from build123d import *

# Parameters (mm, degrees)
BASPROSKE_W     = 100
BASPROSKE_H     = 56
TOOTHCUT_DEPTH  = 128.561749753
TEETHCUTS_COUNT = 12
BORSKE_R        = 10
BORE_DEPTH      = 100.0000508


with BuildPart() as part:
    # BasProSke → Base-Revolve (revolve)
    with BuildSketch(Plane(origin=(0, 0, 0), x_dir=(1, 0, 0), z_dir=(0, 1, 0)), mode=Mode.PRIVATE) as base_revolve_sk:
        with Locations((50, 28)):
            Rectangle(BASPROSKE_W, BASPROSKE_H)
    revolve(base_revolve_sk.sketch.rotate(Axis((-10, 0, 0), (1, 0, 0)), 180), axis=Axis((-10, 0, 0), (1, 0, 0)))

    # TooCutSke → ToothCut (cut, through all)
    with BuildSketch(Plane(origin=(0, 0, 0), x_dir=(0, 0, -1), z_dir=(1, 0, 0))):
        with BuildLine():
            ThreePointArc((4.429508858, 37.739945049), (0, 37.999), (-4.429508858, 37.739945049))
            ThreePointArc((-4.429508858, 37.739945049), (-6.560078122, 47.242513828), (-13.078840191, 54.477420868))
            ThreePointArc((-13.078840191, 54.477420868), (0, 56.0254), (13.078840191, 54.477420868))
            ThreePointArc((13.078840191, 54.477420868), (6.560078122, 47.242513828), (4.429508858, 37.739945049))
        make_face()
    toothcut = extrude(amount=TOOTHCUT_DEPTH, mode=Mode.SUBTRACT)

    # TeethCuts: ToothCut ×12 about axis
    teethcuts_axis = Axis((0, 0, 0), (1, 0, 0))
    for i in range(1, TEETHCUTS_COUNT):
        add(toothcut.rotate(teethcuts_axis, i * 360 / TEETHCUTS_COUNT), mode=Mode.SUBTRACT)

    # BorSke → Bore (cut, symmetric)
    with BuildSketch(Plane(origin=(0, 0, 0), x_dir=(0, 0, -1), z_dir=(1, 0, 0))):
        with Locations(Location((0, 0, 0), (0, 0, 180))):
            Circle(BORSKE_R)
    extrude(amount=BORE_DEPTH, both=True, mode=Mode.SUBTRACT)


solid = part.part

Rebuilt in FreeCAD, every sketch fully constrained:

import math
import FreeCAD as App
import Part
import Sketcher
from FreeCAD import Vector
Q = App.Units.Quantity

doc = App.newDocument("Part")
body = doc.addObject("PartDesign::Body", "Body")

# Sketch on XZ plane
sketch1 = body.newObject("Sketcher::SketchObject", "Sketch")
sketch1.AttachmentSupport = (doc.getObject("XZ_Plane"), [""])
sketch1.MapMode = "FlatFace"
sketch1.addGeometry([
    Part.LineSegment(Vector(0, -56, 0), Vector(0, 0, 0)),
    Part.LineSegment(Vector(0, 0, 0), Vector(100, 0, 0)),
    Part.LineSegment(Vector(100, 0, 0), Vector(100, -56, 0)),
    Part.LineSegment(Vector(100, -56, 0), Vector(0, -56, 0)),
], False)
sketch1.addConstraint([
    Sketcher.Constraint("Coincident", 0, 2, 1, 1),
    Sketcher.Constraint("Coincident", 1, 2, 2, 1),
    Sketcher.Constraint("Coincident", 2, 2, 3, 1),
    Sketcher.Constraint("Coincident", 3, 2, 0, 1),
    Sketcher.Constraint("Vertical", 0),
    Sketcher.Constraint("Horizontal", 1),
    Sketcher.Constraint("Vertical", 2),
    Sketcher.Constraint("Horizontal", 3),
    Sketcher.Constraint("Coincident", 0, 2, -1, 1),
    Sketcher.Constraint("DistanceX", 1, 1, 1, 2, Q("100 mm")),
    Sketcher.Constraint("DistanceY", 0, 1, 0, 2, Q("56 mm")),
])
revolution = body.newObject("PartDesign::Revolution", "Revolution")
revolution.Profile = sketch1
revolution.ReferenceAxis = (sketch1, ["H_Axis"])
revolution.Angle = 360

# Sketch on YZ plane
sketch2 = body.newObject("Sketcher::SketchObject", "Sketch001")
sketch2.AttachmentSupport = (doc.getObject("YZ_Plane"), [""])
sketch2.MapMode = "FlatFace"
sketch2.addGeometry([
    Part.ArcOfCircle(Part.Circle(Vector(0, 0, 0), Vector(0, 0, 1), 37.999), math.radians(-6.694136), math.radians(6.694136)),
    Part.ArcOfCircle(Part.Circle(Vector(38.428013, -23.617176, 0), Vector(0, 0, 1), 19.2), math.radians(33.289638), math.radians(92.053742)),
    Part.ArcOfCircle(Part.Circle(Vector(0, 0, 0), Vector(0, 0, 1), 56.0254), math.radians(-13.499969), math.radians(13.499969)),
    Part.ArcOfCircle(Part.Circle(Vector(38.428013, 23.617176, 0), Vector(0, 0, 1), 19.2), math.radians(-92.053742), math.radians(-33.289638)),
], False)
sketch2.addConstraint([
    Sketcher.Constraint("Coincident", 0, 1, 1, 2),
    Sketcher.Constraint("Coincident", 1, 1, 2, 1),
    Sketcher.Constraint("Coincident", 2, 2, 3, 2),
    Sketcher.Constraint("Coincident", 3, 1, 0, 2),
    Sketcher.Constraint("Coincident", 0, 3, -1, 1),
    Sketcher.Constraint("Coincident", 2, 3, -1, 1),
    Sketcher.Constraint("Equal", 1, 3),
    Sketcher.Constraint("Symmetric", 1, 3, 3, 3, -1),
    Sketcher.Constraint("Radius", 1, Q("19.2 mm")),
    Sketcher.Constraint("Radius", 0, Q("37.999 mm")),
    Sketcher.Constraint("Radius", 2, Q("56.0254 mm")),
    Sketcher.Constraint("DistanceY", 0, 1, -1, 1, Q("4.429509 mm")),
    Sketcher.Constraint("DistanceX", -1, 1, 1, 1, Q("54.477421 mm")),
])
pocket1 = body.newObject("PartDesign::Pocket", "Pocket")
pocket1.Profile = sketch2
pocket1.Type = "ThroughAll"
pocket1.Reversed = True
doc.recompute()

polarpattern = body.newObject("PartDesign::PolarPattern", "PolarPattern")
polarpattern.Originals = [pocket1]
polarpattern.Axis = (doc.getObject("X_Axis"), [""])
polarpattern.Angle = 360
polarpattern.Occurrences = 12
body.Tip = polarpattern

# Sketch on YZ plane
sketch3 = body.newObject("Sketcher::SketchObject", "Sketch002")
sketch3.AttachmentSupport = (doc.getObject("YZ_Plane"), [""])
sketch3.MapMode = "FlatFace"
sketch3.addGeometry(Part.Circle(Vector(0, 0, 0), Vector(0, 0, 1), 10), False)
sketch3.addConstraint([
    Sketcher.Constraint("Coincident", 0, 3, -1, 1),
    Sketcher.Constraint("Diameter", 0, Q("20 mm")),
])
pocket2 = body.newObject("PartDesign::Pocket", "Pocket001")
pocket2.Profile = sketch3
pocket2.Length = 200.000102
pocket2.Midplane = True

doc.recompute()
